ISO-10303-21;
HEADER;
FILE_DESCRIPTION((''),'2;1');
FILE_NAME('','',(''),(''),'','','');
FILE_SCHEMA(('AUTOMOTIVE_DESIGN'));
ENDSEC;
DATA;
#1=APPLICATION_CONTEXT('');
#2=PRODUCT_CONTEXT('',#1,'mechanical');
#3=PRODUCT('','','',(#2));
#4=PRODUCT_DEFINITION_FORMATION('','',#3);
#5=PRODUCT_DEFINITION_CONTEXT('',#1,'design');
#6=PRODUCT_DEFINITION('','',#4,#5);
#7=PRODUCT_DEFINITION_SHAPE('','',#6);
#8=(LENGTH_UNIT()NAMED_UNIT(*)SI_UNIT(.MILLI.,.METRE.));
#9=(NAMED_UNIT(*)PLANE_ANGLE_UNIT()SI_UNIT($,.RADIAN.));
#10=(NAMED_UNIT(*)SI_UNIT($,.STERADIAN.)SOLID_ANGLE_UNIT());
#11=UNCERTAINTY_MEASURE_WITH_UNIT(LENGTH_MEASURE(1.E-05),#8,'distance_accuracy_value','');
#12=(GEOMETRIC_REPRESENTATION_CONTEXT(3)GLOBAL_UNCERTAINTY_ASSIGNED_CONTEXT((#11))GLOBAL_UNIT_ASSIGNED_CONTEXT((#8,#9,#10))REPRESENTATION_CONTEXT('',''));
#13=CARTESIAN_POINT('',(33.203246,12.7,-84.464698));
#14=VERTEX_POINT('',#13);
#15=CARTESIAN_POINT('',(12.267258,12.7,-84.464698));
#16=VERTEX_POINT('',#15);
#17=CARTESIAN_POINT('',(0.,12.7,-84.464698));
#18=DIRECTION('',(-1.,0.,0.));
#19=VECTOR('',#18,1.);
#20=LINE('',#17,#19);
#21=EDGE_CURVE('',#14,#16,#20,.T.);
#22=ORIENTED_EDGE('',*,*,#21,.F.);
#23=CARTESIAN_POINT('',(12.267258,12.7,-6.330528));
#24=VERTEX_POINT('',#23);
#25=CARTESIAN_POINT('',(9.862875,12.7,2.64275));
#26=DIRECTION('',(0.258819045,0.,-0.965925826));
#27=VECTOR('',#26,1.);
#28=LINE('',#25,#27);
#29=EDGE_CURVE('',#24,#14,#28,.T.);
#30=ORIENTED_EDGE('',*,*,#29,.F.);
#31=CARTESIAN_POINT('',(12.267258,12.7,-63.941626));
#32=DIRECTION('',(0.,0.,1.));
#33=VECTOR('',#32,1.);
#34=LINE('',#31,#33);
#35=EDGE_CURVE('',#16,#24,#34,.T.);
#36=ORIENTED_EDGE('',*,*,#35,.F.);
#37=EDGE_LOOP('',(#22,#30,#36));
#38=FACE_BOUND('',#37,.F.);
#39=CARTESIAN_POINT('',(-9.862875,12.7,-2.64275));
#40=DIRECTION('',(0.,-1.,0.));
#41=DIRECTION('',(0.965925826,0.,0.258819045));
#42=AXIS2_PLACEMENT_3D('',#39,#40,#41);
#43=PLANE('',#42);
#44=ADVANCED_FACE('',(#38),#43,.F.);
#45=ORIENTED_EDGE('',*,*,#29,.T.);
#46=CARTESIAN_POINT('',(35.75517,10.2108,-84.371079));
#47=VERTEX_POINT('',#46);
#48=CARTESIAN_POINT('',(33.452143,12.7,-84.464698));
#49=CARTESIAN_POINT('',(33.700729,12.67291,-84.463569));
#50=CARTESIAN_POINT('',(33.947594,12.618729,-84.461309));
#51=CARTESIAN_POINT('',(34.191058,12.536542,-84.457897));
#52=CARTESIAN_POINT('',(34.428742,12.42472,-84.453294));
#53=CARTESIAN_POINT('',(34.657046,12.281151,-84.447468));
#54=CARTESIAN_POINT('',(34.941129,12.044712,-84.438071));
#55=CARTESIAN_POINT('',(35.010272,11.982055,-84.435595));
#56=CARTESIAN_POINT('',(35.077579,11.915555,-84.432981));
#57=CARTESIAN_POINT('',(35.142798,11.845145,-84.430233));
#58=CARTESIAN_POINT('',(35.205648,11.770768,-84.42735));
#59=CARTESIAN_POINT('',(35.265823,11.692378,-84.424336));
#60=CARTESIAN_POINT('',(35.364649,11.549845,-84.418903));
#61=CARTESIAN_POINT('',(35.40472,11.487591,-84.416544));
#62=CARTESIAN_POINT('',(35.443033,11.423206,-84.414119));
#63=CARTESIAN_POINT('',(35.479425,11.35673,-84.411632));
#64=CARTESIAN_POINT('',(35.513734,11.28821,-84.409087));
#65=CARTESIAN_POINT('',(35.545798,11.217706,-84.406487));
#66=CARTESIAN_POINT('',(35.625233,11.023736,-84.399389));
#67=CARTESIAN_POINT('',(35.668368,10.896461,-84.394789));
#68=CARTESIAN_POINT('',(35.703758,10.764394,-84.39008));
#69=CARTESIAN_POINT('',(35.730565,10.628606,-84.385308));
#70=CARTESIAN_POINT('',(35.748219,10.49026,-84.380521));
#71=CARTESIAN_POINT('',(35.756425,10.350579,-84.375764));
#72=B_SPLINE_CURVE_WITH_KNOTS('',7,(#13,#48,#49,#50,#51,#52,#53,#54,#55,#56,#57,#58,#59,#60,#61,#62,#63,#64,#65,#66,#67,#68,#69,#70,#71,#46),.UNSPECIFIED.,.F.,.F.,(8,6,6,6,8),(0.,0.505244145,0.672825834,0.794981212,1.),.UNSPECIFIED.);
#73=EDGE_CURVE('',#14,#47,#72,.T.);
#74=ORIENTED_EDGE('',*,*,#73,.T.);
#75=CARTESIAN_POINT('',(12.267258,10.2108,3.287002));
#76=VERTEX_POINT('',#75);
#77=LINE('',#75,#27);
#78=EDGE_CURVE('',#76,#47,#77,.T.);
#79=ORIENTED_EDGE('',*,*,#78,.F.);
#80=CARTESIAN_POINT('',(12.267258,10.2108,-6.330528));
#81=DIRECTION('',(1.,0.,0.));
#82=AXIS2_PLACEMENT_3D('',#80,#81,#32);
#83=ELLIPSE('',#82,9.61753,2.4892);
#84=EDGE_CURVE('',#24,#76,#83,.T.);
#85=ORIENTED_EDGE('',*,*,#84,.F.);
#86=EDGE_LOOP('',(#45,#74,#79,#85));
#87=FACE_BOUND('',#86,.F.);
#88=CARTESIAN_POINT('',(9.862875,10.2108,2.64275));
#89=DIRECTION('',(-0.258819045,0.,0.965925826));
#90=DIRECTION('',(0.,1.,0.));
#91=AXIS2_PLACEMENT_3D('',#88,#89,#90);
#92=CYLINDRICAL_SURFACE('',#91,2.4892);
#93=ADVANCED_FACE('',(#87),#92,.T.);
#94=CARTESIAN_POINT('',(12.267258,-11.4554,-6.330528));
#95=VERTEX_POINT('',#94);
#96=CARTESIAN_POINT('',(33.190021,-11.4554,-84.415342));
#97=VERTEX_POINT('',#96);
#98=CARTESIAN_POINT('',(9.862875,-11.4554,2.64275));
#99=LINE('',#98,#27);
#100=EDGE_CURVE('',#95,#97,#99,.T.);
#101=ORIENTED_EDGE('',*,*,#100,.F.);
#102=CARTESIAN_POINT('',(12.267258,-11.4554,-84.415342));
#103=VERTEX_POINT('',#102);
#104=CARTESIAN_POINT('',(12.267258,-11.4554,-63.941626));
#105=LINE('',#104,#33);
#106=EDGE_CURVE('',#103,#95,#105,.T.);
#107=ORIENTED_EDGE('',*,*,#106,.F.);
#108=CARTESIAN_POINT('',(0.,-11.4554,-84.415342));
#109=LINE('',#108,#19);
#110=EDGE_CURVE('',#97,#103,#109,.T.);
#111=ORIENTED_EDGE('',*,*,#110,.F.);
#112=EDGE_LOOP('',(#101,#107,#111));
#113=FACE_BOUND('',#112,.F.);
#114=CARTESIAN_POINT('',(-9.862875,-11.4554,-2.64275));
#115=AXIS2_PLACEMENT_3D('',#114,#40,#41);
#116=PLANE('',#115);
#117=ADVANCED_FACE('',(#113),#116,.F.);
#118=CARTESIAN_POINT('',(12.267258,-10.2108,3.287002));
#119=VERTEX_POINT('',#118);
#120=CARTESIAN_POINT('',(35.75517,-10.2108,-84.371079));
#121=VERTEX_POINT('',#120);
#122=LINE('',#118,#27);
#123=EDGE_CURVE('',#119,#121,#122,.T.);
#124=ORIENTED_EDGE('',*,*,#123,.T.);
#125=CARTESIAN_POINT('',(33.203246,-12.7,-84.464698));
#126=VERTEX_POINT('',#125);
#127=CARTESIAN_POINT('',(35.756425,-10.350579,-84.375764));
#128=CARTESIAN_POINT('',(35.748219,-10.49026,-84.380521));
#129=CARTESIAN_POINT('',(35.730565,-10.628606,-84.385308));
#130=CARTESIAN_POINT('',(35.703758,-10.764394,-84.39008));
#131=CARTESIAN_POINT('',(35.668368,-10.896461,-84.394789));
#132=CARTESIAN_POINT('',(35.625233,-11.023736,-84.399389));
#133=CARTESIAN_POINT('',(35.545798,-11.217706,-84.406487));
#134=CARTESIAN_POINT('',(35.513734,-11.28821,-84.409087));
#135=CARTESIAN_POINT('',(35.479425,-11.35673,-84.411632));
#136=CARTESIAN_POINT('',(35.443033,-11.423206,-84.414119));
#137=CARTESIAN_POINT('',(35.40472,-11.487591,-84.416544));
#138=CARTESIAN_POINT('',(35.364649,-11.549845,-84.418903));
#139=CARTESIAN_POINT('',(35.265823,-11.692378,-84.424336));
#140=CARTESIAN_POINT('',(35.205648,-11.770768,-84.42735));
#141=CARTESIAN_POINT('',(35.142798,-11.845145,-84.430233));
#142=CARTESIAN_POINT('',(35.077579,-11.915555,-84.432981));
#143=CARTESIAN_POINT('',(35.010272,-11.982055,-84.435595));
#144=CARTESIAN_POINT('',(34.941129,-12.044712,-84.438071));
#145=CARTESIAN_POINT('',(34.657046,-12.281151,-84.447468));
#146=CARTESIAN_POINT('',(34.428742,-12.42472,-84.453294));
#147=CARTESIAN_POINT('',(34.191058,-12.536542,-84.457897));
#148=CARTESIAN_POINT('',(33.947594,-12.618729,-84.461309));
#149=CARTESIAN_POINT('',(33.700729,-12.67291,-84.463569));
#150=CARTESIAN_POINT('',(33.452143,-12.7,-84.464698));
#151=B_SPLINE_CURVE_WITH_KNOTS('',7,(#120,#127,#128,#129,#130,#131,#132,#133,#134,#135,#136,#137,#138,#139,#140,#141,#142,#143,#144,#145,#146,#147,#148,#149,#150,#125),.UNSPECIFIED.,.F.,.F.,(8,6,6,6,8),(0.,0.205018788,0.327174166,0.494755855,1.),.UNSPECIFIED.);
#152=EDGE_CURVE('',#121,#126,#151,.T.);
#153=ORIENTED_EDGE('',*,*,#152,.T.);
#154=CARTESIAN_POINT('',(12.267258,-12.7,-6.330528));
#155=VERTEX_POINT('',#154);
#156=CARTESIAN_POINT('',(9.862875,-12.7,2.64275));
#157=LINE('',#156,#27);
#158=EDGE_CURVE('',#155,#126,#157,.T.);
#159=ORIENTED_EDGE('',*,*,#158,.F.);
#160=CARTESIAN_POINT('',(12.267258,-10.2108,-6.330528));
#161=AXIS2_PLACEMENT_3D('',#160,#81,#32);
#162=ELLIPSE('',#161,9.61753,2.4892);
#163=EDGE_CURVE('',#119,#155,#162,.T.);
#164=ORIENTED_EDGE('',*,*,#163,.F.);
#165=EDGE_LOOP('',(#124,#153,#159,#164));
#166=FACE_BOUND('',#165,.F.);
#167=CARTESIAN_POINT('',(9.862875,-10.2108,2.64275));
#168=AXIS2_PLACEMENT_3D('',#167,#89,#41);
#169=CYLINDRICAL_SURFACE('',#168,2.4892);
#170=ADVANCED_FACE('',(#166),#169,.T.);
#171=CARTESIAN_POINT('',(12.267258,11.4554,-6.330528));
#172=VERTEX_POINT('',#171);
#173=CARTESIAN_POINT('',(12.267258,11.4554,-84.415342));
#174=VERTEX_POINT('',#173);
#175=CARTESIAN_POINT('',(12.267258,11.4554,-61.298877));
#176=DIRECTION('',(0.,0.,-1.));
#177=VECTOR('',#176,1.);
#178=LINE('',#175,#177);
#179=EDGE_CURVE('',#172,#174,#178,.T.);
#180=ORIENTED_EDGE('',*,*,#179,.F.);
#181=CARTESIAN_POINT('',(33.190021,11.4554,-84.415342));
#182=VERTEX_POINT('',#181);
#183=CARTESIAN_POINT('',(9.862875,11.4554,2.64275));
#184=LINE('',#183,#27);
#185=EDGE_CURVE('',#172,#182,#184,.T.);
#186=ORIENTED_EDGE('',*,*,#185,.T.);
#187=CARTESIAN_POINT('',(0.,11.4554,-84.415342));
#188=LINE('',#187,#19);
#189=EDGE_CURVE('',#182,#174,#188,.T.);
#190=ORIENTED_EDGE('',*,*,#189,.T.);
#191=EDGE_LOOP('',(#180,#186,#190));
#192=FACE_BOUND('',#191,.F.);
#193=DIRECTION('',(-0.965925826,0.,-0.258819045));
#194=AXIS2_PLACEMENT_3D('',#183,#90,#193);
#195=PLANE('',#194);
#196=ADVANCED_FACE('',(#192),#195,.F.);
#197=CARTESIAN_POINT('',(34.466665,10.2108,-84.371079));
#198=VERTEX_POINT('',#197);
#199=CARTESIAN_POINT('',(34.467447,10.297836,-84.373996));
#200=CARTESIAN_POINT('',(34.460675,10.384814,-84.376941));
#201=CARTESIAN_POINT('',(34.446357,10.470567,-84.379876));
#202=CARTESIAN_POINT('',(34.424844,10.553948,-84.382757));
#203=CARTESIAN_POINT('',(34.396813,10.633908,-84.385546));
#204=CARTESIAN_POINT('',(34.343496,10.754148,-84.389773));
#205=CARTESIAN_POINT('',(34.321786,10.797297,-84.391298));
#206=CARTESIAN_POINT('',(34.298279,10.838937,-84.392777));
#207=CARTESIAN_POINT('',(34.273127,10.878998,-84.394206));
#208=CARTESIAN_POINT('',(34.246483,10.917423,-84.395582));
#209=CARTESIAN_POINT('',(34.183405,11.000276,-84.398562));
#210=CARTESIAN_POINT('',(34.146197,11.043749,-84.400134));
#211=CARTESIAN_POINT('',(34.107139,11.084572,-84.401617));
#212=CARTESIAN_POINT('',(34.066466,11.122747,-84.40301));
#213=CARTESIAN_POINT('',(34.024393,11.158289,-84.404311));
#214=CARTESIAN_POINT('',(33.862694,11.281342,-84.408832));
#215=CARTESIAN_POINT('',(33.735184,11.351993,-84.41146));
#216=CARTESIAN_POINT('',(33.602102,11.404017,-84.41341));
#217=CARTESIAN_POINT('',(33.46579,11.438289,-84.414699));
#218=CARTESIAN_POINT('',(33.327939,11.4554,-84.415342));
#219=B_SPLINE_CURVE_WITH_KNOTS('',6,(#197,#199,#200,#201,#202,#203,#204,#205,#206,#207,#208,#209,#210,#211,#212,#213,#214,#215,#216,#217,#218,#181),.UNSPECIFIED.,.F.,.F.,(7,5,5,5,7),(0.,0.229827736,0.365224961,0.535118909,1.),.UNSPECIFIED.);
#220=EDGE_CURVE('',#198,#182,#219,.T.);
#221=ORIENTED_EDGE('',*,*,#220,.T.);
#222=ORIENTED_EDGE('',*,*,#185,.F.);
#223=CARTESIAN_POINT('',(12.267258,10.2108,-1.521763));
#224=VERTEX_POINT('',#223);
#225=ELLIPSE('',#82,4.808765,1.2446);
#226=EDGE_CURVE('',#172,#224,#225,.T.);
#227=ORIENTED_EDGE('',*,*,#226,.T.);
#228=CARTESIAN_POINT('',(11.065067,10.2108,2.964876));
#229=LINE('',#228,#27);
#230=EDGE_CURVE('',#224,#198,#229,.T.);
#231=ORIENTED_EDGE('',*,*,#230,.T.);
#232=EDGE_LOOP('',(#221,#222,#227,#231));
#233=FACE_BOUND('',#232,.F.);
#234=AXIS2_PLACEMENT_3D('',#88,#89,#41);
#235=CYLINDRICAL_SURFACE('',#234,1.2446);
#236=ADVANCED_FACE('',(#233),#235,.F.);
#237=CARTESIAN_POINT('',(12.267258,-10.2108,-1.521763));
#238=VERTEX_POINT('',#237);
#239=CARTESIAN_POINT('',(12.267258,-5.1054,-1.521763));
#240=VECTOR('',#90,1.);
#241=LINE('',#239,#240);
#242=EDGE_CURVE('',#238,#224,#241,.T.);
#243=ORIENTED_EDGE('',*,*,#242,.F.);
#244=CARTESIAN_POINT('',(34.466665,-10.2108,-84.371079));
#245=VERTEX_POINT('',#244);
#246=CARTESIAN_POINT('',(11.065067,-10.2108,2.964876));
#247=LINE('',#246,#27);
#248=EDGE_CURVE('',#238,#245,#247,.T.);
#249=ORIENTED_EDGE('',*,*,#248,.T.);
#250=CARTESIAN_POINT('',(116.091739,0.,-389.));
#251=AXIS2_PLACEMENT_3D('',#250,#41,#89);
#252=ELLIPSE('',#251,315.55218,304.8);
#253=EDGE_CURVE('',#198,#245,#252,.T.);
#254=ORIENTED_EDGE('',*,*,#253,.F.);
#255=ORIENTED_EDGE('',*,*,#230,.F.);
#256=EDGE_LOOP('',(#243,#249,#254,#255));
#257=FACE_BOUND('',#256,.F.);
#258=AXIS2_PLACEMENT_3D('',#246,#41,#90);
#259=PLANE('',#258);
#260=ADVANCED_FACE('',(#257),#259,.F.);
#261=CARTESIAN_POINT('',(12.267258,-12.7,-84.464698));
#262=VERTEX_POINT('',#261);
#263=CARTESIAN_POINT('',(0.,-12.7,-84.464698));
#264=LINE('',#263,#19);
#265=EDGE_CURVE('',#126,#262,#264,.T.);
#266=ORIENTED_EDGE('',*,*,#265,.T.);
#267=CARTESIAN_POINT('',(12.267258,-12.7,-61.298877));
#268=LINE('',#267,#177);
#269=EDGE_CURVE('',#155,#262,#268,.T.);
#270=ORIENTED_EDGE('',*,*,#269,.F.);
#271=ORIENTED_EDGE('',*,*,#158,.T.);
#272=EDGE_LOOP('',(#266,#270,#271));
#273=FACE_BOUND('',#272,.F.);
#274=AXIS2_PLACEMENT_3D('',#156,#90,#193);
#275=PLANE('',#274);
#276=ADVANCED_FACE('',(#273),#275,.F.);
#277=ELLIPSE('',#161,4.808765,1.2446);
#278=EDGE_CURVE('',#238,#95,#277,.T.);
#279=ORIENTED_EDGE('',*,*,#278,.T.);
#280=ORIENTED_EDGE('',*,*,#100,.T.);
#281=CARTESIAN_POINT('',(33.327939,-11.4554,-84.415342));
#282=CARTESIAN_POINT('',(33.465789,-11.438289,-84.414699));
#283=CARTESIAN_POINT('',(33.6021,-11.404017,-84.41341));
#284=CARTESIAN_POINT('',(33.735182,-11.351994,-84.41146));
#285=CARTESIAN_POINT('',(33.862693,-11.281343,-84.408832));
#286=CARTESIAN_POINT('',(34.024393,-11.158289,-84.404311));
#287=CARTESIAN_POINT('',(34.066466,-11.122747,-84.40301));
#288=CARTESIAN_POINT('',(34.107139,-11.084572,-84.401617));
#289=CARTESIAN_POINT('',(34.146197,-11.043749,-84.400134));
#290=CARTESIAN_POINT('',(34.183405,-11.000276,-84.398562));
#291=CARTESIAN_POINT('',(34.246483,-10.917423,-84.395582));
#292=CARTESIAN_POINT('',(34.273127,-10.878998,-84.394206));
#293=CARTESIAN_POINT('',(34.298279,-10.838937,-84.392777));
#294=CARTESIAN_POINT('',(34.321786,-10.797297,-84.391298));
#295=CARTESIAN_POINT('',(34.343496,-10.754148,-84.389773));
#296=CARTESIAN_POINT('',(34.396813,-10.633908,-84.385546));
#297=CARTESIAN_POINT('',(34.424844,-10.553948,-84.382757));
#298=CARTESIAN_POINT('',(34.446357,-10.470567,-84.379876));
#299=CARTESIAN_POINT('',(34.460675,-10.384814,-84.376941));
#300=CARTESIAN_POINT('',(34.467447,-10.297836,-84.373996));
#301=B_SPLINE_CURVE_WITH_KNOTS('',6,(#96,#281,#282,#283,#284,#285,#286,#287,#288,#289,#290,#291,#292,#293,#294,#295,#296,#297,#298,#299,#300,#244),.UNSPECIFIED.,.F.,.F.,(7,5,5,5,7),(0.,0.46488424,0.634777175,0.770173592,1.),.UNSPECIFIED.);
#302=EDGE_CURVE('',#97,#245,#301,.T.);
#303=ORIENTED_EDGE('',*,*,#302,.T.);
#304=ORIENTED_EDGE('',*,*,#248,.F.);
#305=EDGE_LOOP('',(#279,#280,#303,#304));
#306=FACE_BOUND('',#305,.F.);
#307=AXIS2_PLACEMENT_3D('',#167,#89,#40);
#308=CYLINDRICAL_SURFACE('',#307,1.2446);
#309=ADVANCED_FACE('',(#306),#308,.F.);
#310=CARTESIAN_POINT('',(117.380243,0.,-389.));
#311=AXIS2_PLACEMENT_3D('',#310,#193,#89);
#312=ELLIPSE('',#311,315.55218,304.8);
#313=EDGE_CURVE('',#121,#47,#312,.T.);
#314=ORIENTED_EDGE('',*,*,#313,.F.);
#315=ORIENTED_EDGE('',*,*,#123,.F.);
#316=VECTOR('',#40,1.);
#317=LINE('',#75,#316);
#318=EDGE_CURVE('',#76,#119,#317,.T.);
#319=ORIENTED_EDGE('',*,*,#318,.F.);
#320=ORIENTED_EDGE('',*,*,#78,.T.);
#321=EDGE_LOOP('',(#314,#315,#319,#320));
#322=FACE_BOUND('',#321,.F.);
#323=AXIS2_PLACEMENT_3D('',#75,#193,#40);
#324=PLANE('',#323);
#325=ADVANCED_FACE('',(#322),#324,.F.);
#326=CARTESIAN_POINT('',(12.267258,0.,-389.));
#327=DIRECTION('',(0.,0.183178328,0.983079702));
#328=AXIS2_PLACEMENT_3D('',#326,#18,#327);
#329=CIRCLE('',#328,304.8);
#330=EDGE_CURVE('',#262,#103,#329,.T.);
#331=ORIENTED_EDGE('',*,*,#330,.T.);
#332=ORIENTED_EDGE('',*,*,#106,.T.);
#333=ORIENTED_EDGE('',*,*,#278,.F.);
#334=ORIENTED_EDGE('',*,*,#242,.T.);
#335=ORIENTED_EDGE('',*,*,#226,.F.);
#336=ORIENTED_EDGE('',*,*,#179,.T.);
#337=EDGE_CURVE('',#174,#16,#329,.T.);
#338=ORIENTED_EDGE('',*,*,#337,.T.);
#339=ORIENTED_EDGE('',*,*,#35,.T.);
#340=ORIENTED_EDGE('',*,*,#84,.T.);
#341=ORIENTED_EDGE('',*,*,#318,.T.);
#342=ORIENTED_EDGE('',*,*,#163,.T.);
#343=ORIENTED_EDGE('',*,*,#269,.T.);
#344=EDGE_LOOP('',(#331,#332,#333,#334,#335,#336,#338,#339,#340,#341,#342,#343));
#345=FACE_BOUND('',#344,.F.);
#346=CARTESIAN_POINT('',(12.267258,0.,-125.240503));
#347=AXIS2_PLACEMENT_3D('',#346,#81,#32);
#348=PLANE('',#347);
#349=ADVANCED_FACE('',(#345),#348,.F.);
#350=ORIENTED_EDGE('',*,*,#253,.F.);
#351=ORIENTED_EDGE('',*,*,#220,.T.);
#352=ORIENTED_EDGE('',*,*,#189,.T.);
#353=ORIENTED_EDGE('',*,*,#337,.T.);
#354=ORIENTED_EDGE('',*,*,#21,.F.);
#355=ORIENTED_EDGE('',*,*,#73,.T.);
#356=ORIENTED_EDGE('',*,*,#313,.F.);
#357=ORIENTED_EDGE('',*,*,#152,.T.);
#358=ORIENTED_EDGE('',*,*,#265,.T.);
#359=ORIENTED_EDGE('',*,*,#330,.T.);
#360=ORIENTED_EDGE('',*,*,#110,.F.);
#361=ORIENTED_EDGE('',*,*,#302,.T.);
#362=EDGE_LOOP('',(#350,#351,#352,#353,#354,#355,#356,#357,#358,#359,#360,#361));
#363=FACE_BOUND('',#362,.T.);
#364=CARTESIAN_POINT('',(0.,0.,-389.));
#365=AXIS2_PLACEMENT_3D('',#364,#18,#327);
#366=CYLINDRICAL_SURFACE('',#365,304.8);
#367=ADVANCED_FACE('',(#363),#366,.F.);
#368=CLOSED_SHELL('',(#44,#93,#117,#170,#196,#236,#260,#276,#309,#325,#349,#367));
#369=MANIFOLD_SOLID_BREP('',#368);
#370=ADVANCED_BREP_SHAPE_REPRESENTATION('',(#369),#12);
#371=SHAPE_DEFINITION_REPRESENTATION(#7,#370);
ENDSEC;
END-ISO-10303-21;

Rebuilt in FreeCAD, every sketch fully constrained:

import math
import FreeCAD as App
import Part
import Sketcher
from FreeCAD import Vector
Q = App.Units.Quantity


def add_polygon(sketch, points):
    """Adds a closed chain of lines whose ends are joined by coincident constraints."""
    first, n = sketch.GeometryCount, len(points)
    for a, b in zip(points, points[1:] + points[:1]):
        sketch.addGeometry(Part.LineSegment(App.Vector(*a, 0), App.Vector(*b, 0)), False)
    for i in range(n):
        sketch.addConstraint(Sketcher.Constraint("Coincident", first + i, 2, first + (i + 1) % n, 1))

doc = App.newDocument("Part")
body = doc.addObject("PartDesign::Body", "Body")

# Sketch on an angled plane
sketch1 = body.newObject("Sketcher::SketchObject", "Sketch")
sketch1.Placement = App.Placement(Vector(0, 0, 0), App.Rotation(Vector(0.965925826, 0, 0.258819045), Vector(0, -0.999999999, 0), Vector(0.258819045, 0, -0.965925826), "ZXY"))
sketch1.addGeometry([
    Part.LineSegment(Vector(-10.2, -12.7, 0), Vector(10.2, -12.7, 0)),  # 0
    Part.ArcOfCircle(Part.Circle(Vector(10.2, -10.2, 0), Vector(0, 0, 1), 2.5), math.radians(-90), math.radians(0)),  # 1
    Part.LineSegment(Vector(12.7, -10.2, 0), Vector(12.7, 10.2, 0)),  # 2
    Part.ArcOfCircle(Part.Circle(Vector(10.2, 10.2, 0), Vector(0, 0, 1), 2.5), math.radians(0), math.radians(90)),  # 3
    Part.LineSegment(Vector(10.2, 12.7, 0), Vector(-10.2, 12.7, 0)),  # 4
    Part.ArcOfCircle(Part.Circle(Vector(-10.2, 10.2, 0), Vector(0, 0, 1), 2.5), math.radians(90), math.radians(180)),  # 5
    Part.LineSegment(Vector(-12.7, 10.2, 0), Vector(-12.7, -10.2, 0)),  # 6
    Part.ArcOfCircle(Part.Circle(Vector(-10.2, -10.2, 0), Vector(0, 0, 1), 2.5), math.radians(180), math.radians(270)),  # 7
    Part.LineSegment(Vector(11.5, 10.2, 0), Vector(11.5, -10.2, 0)),  # 8
    Part.ArcOfCircle(Part.Circle(Vector(10.2, -10.2, 0), Vector(0, 0, 1), 1.2), math.radians(-90), math.radians(0)),  # 9
    Part.LineSegment(Vector(10.2, -11.5, 0), Vector(-10.2, -11.5, 0)),  # 10
    Part.ArcOfCircle(Part.Circle(Vector(-10.2, -10.2, 0), Vector(0, 0, 1), 1.2), math.radians(180), math.radians(270)),  # 11
    Part.LineSegment(Vector(-11.5, -10.2, 0), Vector(-11.5, 10.2, 0)),  # 12
    Part.ArcOfCircle(Part.Circle(Vector(-10.2, 10.2, 0), Vector(0, 0, 1), 1.2), math.radians(90), math.radians(180)),  # 13
    Part.LineSegment(Vector(-10.2, 11.5, 0), Vector(10.2, 11.5, 0)),  # 14
    Part.ArcOfCircle(Part.Circle(Vector(10.2, 10.2, 0), Vector(0, 0, 1), 1.2), math.radians(0), math.radians(90)),  # 15
], False)
sketch1.addConstraint([
    Sketcher.Constraint("Tangent", 0, 2, 1, 1),
    Sketcher.Constraint("Tangent", 1, 2, 2, 1),
    Sketcher.Constraint("Tangent", 2, 2, 3, 1),
    Sketcher.Constraint("Tangent", 3, 2, 4, 1),
    Sketcher.Constraint("Tangent", 4, 2, 5, 1),
    Sketcher.Constraint("Tangent", 5, 2, 6, 1),
    Sketcher.Constraint("Tangent", 6, 2, 7, 1),
    Sketcher.Constraint("Tangent", 7, 2, 0, 1),
    Sketcher.Constraint("Tangent", 8, 2, 9, 2),
    Sketcher.Constraint("Tangent", 9, 1, 10, 1),
    Sketcher.Constraint("Tangent", 10, 2, 11, 2),
    Sketcher.Constraint("Tangent", 11, 1, 12, 1),
    Sketcher.Constraint("Tangent", 12, 2, 13, 2),
    Sketcher.Constraint("Tangent", 13, 1, 14, 1),
    Sketcher.Constraint("Tangent", 14, 2, 15, 2),
    Sketcher.Constraint("Tangent", 15, 1, 8, 1),
    Sketcher.Constraint("Horizontal", 0),
    Sketcher.Constraint("Vertical", 2),
    Sketcher.Constraint("Horizontal", 4),
    Sketcher.Constraint("Vertical", 6),
    Sketcher.Constraint("Vertical", 8),
    Sketcher.Constraint("Horizontal", 10),
    Sketcher.Constraint("Vertical", 12),
    Sketcher.Constraint("Horizontal", 14),
    Sketcher.Constraint("Coincident", 9, 3, 1, 3),
    Sketcher.Constraint("Coincident", 11, 3, 7, 3),
    Sketcher.Constraint("Coincident", 13, 3, 5, 3),
    Sketcher.Constraint("Equal", 1, 3),
    Sketcher.Constraint("Equal", 3, 5),
    Sketcher.Constraint("Equal", 5, 7),
    Sketcher.Constraint("Equal", 13, 15),
    Sketcher.Constraint("Symmetric", 1, 3, 5, 3, -1, 1),
    Sketcher.Constraint("Equal", 14, 2),
    Sketcher.Constraint("Radius", 1, Q("0.098 in")),
    Sketcher.Constraint("Radius", 9, Q("0.049 in")),
    Sketcher.Constraint("DistanceY", 0, 2, -1, 1, Q("0.5 in")),
])
pad1 = body.newObject("PartDesign::Pad", "Pad")
pad1.Profile = sketch1
pad1.Length = 92.038

# Sketch on XZ plane
sketch2 = body.newObject("Sketcher::SketchObject", "Sketch001")
sketch2.AttachmentSupport = (doc.getObject("XZ_Plane"), [""])
sketch2.MapMode = "FlatFace"
add_polygon(sketch2, [(-33, 3), (-33, -125), (12, -125), (12, 3)])  # lines 0-3
sketch2.addConstraint([
    Sketcher.Constraint("Vertical", 0),
    Sketcher.Constraint("Horizontal", 1),
    Sketcher.Constraint("Vertical", 2),
    Sketcher.Constraint("Horizontal", 3),
    Sketcher.Constraint("DistanceX", 1, 1, 1, 2, 44.978298),
    Sketcher.Constraint("DistanceY", -1, 1, 2, 2, 3.287002),
    Sketcher.Constraint("DistanceY", 0, 2, 0, 1, 128.527504),
    Sketcher.Constraint("DistanceX", 0, 2, -1, 1, 32.71104),
])
pocket1 = body.newObject("PartDesign::Pocket", "Pocket")
pocket1.Profile = sketch2
pocket1.Length = 50
pocket1.Midplane = True

# Sketch on YZ plane
sketch3 = body.newObject("Sketcher::SketchObject", "Sketch002")
sketch3.AttachmentSupport = (doc.getObject("YZ_Plane"), [""])
sketch3.MapMode = "FlatFace"
sketch3.addGeometry([
    Part.LineSegment(Vector(0, -156, 0), Vector(56, -89, 0)),
    Part.ArcOfCircle(Part.Circle(Vector(0, -389, 0), Vector(0, 0, 1), 305), math.radians(79), math.radians(100)),
    Part.LineSegment(Vector(-52, -89, 0), Vector(0, -156, 0)),
], False)
sketch3.addConstraint([
    Sketcher.Constraint("Coincident", 0, 2, 1, 1),
    Sketcher.Constraint("Coincident", 1, 2, 2, 1),
    Sketcher.Constraint("Coincident", 2, 2, 0, 1),
    Sketcher.Constraint("PointOnObject", 1, 3, -2),
    Sketcher.Constraint("PointOnObject", 2, 2, -2),
    Sketcher.Constraint("Radius", 1, Q("12 in")),
    Sketcher.Constraint("DistanceY", 1, 3, -1, 1, 389.0),
    Sketcher.Constraint("DistanceY", 1, 2, -1, 1, 88.624151),
    Sketcher.Constraint("DistanceY", 2, 2, -1, 1, 155.81654),
    Sketcher.Constraint("Distance", 0, 86.799344),
])
pocket2 = body.newObject("PartDesign::Pocket", "Pocket001")
pocket2.Profile = sketch3
pocket2.Length = 50
pocket2.Reversed = True

doc.recompute()
